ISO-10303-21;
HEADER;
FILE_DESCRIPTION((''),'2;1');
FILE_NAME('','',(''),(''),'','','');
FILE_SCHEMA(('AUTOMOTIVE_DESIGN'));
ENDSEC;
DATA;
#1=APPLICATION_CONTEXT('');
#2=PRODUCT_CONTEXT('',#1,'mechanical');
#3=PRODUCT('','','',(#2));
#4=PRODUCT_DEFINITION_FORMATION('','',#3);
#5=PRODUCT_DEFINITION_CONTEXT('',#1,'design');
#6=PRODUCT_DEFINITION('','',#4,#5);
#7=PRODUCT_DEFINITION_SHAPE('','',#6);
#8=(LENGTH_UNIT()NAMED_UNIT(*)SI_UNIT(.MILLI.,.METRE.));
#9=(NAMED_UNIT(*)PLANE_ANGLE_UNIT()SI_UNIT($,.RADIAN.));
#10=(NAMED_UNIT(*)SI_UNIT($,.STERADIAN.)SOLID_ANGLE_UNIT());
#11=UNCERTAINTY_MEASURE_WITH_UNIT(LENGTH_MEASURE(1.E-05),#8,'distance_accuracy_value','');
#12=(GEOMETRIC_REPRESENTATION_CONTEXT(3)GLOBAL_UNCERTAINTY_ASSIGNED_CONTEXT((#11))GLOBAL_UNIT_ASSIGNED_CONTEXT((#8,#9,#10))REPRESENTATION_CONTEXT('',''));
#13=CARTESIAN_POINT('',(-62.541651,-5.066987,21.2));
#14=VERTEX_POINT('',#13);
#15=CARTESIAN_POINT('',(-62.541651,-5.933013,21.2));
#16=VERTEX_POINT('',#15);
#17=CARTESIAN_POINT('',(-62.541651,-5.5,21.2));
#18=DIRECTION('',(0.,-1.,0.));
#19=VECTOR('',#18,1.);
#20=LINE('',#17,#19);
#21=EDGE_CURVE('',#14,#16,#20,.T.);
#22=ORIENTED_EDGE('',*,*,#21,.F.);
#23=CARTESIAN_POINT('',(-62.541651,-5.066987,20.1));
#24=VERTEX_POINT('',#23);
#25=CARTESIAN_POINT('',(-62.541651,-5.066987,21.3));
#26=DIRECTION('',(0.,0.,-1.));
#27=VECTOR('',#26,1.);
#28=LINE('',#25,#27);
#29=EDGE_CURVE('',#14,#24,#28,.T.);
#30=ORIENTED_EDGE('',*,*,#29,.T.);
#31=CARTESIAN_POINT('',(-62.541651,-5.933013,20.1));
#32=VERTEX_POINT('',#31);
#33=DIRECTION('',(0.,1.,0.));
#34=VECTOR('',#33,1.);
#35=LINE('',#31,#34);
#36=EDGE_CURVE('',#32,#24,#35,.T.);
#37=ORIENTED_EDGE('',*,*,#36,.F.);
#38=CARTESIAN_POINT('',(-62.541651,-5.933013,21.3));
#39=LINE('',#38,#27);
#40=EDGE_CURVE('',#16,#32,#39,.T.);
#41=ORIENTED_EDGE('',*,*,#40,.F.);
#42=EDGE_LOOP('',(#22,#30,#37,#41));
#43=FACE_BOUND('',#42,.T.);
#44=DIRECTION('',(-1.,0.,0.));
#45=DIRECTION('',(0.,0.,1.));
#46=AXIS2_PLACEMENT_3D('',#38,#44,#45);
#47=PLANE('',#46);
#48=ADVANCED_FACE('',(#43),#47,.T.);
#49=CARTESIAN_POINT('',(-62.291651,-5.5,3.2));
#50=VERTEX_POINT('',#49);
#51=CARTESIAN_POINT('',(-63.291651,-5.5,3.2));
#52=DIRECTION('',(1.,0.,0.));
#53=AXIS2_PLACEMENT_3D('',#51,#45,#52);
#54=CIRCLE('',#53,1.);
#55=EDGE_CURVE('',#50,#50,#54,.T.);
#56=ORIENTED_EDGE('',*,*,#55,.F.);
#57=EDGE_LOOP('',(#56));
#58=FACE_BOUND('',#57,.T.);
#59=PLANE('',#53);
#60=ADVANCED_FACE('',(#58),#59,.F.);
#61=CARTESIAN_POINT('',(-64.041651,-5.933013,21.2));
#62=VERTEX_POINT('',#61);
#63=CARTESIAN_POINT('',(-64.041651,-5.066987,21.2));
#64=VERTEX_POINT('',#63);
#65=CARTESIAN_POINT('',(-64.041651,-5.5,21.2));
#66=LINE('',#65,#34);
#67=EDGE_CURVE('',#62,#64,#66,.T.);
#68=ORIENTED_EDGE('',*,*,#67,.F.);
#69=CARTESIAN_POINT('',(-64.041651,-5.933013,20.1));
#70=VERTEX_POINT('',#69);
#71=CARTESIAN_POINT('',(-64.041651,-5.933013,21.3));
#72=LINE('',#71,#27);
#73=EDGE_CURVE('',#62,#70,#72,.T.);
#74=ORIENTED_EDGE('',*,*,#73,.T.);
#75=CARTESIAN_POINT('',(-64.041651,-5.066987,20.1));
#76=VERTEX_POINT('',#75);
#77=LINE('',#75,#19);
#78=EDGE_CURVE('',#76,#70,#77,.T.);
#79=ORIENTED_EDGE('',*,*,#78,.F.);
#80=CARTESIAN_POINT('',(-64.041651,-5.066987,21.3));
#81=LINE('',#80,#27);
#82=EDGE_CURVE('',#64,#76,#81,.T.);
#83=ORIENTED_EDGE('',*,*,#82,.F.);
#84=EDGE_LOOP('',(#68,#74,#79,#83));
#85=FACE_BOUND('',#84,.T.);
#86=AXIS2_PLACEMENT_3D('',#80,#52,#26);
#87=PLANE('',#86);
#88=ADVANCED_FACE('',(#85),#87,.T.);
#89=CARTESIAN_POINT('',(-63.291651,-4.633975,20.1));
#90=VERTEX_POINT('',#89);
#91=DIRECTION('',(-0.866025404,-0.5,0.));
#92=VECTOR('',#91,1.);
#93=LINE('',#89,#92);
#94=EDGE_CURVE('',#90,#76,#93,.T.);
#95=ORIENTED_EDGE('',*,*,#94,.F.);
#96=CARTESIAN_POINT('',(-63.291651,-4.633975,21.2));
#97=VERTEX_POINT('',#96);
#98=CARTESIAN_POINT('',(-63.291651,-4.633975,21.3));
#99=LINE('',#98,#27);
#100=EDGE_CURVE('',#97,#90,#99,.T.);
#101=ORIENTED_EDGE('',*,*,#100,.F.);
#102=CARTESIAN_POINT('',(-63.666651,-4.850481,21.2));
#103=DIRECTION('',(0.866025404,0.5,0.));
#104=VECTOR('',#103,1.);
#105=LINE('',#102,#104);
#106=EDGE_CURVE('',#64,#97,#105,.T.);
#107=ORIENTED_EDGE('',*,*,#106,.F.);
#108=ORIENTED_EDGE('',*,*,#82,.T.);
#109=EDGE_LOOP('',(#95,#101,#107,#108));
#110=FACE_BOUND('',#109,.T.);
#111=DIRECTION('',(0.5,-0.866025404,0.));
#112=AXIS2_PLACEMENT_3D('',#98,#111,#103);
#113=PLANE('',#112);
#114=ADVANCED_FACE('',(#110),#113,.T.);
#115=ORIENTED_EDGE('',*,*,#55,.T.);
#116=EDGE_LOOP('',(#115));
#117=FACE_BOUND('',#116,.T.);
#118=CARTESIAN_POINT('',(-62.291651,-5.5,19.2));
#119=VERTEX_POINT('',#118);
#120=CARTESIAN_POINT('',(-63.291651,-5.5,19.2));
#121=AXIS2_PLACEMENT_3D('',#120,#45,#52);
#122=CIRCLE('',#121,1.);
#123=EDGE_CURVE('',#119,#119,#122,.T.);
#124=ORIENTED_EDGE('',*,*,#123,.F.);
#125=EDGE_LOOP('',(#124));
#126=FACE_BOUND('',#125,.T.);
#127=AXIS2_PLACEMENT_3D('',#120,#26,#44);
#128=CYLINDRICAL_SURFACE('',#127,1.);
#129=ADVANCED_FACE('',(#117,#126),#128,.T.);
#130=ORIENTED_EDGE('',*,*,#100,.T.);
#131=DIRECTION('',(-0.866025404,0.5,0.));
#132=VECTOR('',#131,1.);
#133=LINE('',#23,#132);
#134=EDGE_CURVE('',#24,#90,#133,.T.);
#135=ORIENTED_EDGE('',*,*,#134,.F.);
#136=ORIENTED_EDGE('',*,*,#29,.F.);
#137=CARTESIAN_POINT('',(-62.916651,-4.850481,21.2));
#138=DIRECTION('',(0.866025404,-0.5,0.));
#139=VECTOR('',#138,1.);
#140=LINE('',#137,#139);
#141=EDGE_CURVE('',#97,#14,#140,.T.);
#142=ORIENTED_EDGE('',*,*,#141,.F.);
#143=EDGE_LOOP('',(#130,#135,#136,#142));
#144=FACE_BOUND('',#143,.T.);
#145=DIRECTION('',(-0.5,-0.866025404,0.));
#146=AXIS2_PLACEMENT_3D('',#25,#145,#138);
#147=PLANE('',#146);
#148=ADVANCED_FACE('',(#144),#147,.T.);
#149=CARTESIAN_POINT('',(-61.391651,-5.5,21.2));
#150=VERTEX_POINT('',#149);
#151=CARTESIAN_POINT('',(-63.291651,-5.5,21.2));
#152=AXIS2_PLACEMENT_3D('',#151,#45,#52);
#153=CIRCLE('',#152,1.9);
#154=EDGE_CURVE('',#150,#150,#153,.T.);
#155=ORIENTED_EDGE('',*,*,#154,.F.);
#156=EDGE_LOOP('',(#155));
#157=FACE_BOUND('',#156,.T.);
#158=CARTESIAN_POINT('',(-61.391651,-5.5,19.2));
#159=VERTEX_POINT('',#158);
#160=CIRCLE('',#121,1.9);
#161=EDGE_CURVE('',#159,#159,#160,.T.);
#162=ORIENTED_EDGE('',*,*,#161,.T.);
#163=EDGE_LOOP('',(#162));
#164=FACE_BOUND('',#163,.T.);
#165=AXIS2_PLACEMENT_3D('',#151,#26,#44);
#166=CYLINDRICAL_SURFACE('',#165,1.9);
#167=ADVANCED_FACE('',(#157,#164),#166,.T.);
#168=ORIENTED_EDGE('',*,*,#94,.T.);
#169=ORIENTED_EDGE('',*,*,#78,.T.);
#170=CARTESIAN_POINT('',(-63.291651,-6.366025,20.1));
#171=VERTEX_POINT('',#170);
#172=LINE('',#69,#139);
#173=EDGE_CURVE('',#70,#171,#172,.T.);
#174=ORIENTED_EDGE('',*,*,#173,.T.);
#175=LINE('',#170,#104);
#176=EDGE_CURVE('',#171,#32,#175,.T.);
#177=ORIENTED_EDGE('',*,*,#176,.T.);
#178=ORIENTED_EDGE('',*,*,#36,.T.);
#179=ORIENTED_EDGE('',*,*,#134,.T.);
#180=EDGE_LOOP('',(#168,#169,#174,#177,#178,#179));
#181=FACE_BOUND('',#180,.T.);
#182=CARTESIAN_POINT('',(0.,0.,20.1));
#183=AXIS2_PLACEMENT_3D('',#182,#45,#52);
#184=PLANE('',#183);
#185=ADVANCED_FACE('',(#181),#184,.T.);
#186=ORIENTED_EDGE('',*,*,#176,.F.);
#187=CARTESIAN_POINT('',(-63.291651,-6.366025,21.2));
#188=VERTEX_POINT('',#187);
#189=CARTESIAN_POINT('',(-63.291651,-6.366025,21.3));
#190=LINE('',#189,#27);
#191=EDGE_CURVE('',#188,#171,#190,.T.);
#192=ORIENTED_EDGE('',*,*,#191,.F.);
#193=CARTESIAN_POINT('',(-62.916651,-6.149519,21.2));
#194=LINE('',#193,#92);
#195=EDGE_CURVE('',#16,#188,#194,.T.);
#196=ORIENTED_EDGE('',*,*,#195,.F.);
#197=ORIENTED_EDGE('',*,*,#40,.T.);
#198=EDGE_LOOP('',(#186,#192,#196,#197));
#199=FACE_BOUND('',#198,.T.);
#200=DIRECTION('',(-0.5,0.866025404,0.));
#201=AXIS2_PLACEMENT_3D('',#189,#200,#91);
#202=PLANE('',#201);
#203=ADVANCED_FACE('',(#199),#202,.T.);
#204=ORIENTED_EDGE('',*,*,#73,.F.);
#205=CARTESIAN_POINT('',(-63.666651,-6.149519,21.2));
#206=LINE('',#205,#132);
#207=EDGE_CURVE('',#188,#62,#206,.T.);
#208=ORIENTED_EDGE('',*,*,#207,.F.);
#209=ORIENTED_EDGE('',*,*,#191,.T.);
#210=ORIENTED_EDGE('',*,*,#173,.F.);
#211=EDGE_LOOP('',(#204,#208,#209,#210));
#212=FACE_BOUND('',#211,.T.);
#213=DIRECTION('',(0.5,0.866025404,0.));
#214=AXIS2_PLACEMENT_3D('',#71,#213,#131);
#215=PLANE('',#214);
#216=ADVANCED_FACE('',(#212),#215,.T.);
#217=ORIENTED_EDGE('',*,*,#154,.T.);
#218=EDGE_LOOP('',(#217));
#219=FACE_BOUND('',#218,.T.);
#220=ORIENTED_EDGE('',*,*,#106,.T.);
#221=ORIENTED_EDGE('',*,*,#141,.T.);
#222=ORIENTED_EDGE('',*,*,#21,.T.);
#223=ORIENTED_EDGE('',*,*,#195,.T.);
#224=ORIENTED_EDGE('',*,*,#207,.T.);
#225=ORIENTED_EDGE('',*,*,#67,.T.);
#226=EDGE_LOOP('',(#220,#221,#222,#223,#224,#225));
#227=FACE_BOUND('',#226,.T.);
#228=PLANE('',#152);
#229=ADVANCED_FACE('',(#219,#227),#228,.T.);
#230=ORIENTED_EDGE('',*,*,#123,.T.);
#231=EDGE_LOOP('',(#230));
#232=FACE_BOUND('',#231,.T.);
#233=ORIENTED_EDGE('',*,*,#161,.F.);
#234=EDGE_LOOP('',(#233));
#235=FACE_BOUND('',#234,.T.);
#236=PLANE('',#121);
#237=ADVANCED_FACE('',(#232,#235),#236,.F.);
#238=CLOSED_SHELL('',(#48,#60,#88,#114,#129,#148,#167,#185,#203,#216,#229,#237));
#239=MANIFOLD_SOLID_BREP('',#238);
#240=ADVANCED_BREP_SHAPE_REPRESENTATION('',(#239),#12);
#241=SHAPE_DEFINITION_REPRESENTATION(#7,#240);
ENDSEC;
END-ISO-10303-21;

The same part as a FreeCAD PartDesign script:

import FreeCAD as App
import Part
import Sketcher
Q = App.Units.Quantity


def add_polygon(sketch, points):
    """Adds a closed chain of lines whose ends are joined by coincident constraints."""
    first, n = sketch.GeometryCount, len(points)
    for a, b in zip(points, points[1:] + points[:1]):
        sketch.addGeometry(Part.LineSegment(App.Vector(*a, 0), App.Vector(*b, 0)), False)
    for i in range(n):
        sketch.addConstraint(Sketcher.Constraint("Coincident", first + i, 2, first + (i + 1) % n, 1))

doc = App.newDocument("Part")
params = doc.addObject("Spreadsheet::Sheet", "Params")
for row, (alias, value) in enumerate([
    ("sketch1_diameter", "2 mm"),
    ("pad1_length", "16 mm"),
    ("sketch2_diameter", "3.8 mm"),
    ("pad2_length", "2 mm"),
    ("pocket1_length", "1.2 mm"),
], start=1):
    params.set(f"A{row}", alias)
    params.set(f"B{row}", "=" + value)
    params.setAlias(f"B{row}", alias)

body = doc.addObject("PartDesign::Body", "Body")

sketch1 = body.newObject("Sketcher::SketchObject", "Sketch")
sketch1.AttachmentSupport = (doc.getObject("XY_Plane"), [""])
sketch1.MapMode = "FlatFace"
sketch1.AttachmentOffset = App.Placement(App.Vector(0, 0, 3.2), App.Rotation())
sketch1.addGeometry(Part.Circle(App.Vector(-63.3, -5.5, 0), App.Vector(0, 0, 1), 1), False)
sketch1.addConstraint(Sketcher.Constraint("Diameter", 0, 2.0))
sketch1.addConstraint(Sketcher.Constraint("DistanceY", 0, 3, -1, 1, 5.5))
sketch1.addConstraint(Sketcher.Constraint("DistanceX", 0, 3, -1, 1, 63.291651))
sketch1.setExpression("Constraints[0]", "Params.sketch1_diameter")
pad1 = body.newObject("PartDesign::Pad", "Pad")
pad1.Profile = sketch1
pad1.setExpression("Length", "Params.pad1_length")

sketch2 = body.newObject("Sketcher::SketchObject", "Sketch001")
sketch2.AttachmentSupport = (doc.getObject("XY_Plane"), [""])
sketch2.MapMode = "FlatFace"
sketch2.AttachmentOffset = App.Placement(App.Vector(0, 0, 19.2), App.Rotation())
sketch2.addGeometry(Part.Circle(App.Vector(-63.3, -5.5, 0), App.Vector(0, 0, 1), 1.9), False)
sketch2.addConstraint(Sketcher.Constraint("Diameter", 0, 3.8))
sketch2.addConstraint(Sketcher.Constraint("DistanceY", 0, 3, -1, 1, 5.5))
sketch2.addConstraint(Sketcher.Constraint("DistanceX", 0, 3, -1, 1, 63.291651))
sketch2.setExpression("Constraints[0]", "Params.sketch2_diameter")
pad2 = body.newObject("PartDesign::Pad", "Pad001")
pad2.Profile = sketch2
pad2.setExpression("Length", "Params.pad2_length")

sketch3 = body.newObject("Sketcher::SketchObject", "Sketch002")
sketch3.AttachmentSupport = (doc.getObject("XY_Plane"), [""])
sketch3.MapMode = "FlatFace"
sketch3.AttachmentOffset = App.Placement(App.Vector(0, 0, 20.1), App.Rotation())
add_polygon(sketch3, [(-62.5, -5.1), (-63.3, -4.6), (-64, -5.1), (-64, -5.9), (-63.3, -6.4), (-62.5, -5.9)])
sketch3.addConstraint(Sketcher.Constraint("Vertical", 2))
sketch3.addConstraint(Sketcher.Constraint("Vertical", 5))
sketch3.addConstraint(Sketcher.Constraint("Parallel", 0, 3))
sketch3.addConstraint(Sketcher.Constraint("Parallel", 1, 4))
sketch3.addConstraint(Sketcher.Constraint("Horizontal", 2, 2, 4, 2))
sketch3.addConstraint(Sketcher.Constraint("Horizontal", 1, 2, 5, 2))
sketch3.addConstraint(Sketcher.Constraint("Vertical", 0, 2, 3, 2))
sketch3.addConstraint(Sketcher.Constraint("Angle", 0, Q("150 deg")))
sketch3.addConstraint(Sketcher.Constraint("DistanceX", 2, 2, 4, 2, 1.5))
sketch3.addConstraint(Sketcher.Constraint("DistanceY", 2, 2, 2, 1, 0.866025))
sketch3.addConstraint(Sketcher.Constraint("DistanceX", 0, 2, -1, 1, 63.291651))
sketch3.addConstraint(Sketcher.Constraint("DistanceY", 0, 2, -1, 1, 4.633975))
pocket1 = body.newObject("PartDesign::Pocket", "Pocket")
pocket1.Profile = sketch3
pocket1.setExpression("Length", "Params.pocket1_length")
pocket1.Reversed = True

doc.recompute()
